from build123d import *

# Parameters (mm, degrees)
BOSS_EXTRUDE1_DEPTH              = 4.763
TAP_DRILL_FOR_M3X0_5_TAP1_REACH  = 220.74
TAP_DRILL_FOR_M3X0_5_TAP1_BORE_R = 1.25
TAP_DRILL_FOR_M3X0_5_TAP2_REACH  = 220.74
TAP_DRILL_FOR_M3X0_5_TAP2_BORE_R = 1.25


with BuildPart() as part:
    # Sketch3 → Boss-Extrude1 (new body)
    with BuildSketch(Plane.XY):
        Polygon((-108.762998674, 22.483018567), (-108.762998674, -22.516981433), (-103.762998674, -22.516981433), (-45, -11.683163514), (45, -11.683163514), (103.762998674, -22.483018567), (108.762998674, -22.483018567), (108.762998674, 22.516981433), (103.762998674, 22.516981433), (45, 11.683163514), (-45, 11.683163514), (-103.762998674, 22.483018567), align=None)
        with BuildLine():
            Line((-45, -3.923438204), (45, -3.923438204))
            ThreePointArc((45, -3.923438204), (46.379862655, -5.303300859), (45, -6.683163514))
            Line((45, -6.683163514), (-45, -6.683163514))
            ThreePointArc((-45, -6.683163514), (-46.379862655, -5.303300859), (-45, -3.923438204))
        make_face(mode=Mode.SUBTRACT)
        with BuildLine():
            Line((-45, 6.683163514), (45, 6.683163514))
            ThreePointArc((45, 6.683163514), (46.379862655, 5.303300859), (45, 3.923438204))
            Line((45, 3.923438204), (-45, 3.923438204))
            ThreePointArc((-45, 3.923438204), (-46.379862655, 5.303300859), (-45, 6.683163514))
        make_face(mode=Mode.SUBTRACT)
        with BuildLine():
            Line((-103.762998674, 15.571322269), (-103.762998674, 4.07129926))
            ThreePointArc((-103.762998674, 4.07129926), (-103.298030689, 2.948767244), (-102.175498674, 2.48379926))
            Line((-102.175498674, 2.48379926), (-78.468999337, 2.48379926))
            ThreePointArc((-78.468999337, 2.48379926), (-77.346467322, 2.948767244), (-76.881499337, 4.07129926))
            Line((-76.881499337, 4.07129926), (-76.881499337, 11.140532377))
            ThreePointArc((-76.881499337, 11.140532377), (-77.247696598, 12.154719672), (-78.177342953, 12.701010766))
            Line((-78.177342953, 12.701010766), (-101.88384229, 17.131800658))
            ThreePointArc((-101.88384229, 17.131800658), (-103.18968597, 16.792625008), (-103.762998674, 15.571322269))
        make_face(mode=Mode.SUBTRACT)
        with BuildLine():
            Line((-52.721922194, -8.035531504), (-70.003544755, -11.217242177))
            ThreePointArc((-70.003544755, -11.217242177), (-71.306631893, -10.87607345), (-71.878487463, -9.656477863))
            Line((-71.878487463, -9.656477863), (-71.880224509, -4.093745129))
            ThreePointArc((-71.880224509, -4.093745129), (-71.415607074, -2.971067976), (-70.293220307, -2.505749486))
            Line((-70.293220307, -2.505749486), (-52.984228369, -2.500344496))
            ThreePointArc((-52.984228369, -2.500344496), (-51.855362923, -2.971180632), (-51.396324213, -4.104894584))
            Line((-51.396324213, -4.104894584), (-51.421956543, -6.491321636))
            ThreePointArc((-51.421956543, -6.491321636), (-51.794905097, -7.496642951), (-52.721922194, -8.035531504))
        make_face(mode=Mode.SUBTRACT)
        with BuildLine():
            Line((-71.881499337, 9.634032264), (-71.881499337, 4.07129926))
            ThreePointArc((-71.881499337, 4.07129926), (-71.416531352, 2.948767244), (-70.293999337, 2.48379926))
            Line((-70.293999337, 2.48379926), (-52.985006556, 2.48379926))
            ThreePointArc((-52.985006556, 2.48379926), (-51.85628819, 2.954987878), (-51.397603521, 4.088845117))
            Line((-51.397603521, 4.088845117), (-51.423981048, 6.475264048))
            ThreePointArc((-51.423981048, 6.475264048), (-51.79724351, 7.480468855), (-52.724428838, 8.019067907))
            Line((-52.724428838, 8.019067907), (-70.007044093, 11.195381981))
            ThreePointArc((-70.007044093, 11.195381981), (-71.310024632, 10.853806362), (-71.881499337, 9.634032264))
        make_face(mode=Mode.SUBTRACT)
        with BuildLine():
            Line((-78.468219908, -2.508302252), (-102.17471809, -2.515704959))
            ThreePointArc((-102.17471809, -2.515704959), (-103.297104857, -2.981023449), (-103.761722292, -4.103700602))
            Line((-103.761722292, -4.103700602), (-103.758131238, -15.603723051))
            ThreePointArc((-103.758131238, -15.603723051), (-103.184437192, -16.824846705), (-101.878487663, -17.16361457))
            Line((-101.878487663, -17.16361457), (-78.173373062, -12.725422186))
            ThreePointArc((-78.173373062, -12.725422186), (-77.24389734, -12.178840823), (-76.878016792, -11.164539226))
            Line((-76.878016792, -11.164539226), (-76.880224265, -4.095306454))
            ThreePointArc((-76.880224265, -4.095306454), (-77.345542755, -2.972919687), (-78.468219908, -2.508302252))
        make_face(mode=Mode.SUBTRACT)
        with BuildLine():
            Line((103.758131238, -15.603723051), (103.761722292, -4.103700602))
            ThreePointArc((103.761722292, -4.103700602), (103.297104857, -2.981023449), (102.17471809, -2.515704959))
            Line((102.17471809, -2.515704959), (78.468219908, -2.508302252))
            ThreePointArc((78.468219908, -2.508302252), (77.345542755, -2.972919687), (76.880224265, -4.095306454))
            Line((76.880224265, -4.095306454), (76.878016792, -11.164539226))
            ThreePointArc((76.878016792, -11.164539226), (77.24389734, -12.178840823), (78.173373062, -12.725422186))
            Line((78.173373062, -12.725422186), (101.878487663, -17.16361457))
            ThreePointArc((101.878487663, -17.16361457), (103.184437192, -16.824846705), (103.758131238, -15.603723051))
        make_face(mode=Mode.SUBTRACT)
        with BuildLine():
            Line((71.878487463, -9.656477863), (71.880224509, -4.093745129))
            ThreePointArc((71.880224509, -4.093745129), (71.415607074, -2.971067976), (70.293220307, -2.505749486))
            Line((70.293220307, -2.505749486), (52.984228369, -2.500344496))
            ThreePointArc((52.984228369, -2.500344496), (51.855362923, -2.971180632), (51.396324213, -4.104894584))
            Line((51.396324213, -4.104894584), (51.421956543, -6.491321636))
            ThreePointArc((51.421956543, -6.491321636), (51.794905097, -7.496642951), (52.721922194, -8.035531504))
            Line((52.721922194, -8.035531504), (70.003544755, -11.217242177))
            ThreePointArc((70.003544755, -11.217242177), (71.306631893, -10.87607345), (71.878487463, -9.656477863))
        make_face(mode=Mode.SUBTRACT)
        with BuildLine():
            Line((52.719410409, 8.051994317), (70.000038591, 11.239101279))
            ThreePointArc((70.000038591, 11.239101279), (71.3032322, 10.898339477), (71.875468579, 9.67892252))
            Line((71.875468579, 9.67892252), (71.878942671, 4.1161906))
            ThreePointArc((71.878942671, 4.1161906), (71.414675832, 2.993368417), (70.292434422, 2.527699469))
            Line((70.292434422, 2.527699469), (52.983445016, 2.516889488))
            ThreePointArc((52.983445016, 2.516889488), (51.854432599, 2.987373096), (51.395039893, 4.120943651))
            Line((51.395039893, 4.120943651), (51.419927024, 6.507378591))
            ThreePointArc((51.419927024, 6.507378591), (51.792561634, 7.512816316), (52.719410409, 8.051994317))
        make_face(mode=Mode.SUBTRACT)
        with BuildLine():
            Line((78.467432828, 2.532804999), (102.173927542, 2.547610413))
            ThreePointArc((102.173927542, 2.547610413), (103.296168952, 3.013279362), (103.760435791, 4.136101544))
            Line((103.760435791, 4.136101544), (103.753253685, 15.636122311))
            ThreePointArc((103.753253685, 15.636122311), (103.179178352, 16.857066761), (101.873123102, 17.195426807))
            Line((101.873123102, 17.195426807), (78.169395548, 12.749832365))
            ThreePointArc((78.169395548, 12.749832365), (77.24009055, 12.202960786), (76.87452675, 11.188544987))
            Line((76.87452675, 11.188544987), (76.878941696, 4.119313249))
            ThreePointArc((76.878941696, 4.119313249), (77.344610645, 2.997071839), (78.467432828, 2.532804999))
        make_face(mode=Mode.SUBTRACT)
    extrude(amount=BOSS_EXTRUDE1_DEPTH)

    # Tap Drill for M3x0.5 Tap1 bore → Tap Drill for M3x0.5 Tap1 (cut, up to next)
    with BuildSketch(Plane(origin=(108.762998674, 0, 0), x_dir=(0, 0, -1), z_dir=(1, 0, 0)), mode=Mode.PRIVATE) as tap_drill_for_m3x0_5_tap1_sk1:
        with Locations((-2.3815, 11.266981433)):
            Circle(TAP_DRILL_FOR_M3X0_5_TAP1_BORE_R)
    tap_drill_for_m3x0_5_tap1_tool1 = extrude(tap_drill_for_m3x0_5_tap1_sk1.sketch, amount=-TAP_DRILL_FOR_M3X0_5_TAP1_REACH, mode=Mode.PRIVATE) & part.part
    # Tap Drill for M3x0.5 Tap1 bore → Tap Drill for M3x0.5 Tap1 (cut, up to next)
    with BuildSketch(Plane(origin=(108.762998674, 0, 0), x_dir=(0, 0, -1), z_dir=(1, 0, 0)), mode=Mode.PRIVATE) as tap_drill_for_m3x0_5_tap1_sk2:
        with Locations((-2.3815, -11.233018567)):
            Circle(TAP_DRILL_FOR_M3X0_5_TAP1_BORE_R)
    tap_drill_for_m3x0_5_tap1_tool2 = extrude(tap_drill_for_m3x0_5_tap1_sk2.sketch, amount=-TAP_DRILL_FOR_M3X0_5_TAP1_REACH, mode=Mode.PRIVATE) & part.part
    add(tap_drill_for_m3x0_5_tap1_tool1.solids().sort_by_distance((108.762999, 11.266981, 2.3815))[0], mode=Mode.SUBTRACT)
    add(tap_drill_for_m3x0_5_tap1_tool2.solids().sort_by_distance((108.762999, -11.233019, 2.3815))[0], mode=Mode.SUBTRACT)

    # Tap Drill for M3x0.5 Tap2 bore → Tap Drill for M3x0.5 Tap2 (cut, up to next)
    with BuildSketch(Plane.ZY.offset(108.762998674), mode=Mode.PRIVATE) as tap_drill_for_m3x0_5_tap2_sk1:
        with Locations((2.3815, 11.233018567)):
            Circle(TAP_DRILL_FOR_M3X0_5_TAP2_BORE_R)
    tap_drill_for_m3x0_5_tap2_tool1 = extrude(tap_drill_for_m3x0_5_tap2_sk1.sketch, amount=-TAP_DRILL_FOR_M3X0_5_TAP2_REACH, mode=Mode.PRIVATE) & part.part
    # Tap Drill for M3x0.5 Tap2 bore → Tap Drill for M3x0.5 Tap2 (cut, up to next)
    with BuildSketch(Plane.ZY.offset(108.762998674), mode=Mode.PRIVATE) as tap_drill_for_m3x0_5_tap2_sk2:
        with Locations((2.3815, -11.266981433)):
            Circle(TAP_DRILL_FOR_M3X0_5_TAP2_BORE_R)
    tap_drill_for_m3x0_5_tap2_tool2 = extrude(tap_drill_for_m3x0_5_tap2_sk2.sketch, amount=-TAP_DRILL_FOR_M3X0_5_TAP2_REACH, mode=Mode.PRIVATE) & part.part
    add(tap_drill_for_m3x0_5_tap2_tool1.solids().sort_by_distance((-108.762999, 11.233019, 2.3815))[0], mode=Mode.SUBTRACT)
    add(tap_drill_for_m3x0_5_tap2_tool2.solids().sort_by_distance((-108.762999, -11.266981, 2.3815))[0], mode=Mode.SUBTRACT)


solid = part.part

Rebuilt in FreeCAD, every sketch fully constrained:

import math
import FreeCAD as App
import Part
import Sketcher

V = App.Vector


def add_polygon(sketch, points):
    """Adds a closed chain of lines whose ends are joined by coincident constraints."""
    first, n = sketch.GeometryCount, len(points)
    for a, b in zip(points, points[1:] + points[:1]):
        sketch.addGeometry(Part.LineSegment(App.Vector(*a, 0), App.Vector(*b, 0)), False)
    for i in range(n):
        sketch.addConstraint(Sketcher.Constraint("Coincident", first + i, 2, first + (i + 1) % n, 1))

doc = App.newDocument("Part")
body = doc.addObject("PartDesign::Body", "Body")

# Sketch on XY plane
sketch1 = body.newObject("Sketcher::SketchObject", "Sketch")
sketch1.AttachmentSupport = (doc.getObject("XY_Plane"), [""])
sketch1.MapMode = "FlatFace"
add_polygon(sketch1, [(-108.762999, 22.483019), (-108.762999, -22.516981), (-103.762999, -22.516981), (-45, -11.683164), (45, -11.683164), (103.762999, -22.483019), (108.762999, -22.483019), (108.762999, 22.516981), (103.762999, 22.516981), (45, 11.683164), (-45, 11.683164), (-103.762999, 22.483019)])  # lines 0-11
sketch1.addGeometry(Part.LineSegment(V(-102.174718, -2.515705, 0), V(-78.46822, -2.508302, 0)), False)  # 12
sketch1.addGeometry(Part.ArcOfCircle(Part.Circle(V(-78.467724, -4.095802, 0), V(0, 0, 1), 1.5875), math.radians(0.017892), math.radians(90.017891)), False)  # 13
sketch1.addGeometry(Part.LineSegment(V(-76.880224, -4.095306, 0), V(-76.878017, -11.164539, 0)), False)  # 14
sketch1.addGeometry(Part.ArcOfCircle(Part.Circle(V(-78.465517, -11.165035, 0), V(0, 0, 1), 1.5875), math.radians(-79.395561), math.radians(0.017892)), False)  # 15
sketch1.addGeometry(Part.LineSegment(V(-78.173373, -12.725422, 0), V(-101.878488, -17.163615, 0)), False)  # 16
sketch1.addGeometry(Part.ArcOfCircle(Part.Circle(V(-102.170631, -15.603227, 0), V(0, 0, 1), 1.5875), math.radians(-179.982109), math.radians(-79.395561)), False)  # 17
sketch1.addGeometry(Part.LineSegment(V(-103.758131, -15.603723, 0), V(-103.761722, -4.103701, 0)), False)  # 18
sketch1.addGeometry(Part.ArcOfCircle(Part.Circle(V(-102.174222, -4.103205, 0), V(0, 0, 1), 1.5875), math.radians(90.017892), math.radians(180.017891)), False)  # 19
sketch1.addGeometry(Part.ArcOfCircle(Part.Circle(V(-53.009365, -6.474271, 0), V(0, 0, 1), 1.5875), math.radians(-79.568124), math.radians(-0.615384)), False)  # 20
sketch1.addGeometry(Part.LineSegment(V(-52.721922, -8.035532, 0), V(-70.003545, -11.217242, 0)), False)  # 21
sketch1.addGeometry(Part.ArcOfCircle(Part.Circle(V(-70.290988, -9.655982, 0), V(0, 0, 1), 1.5875), math.radians(-179.982109), math.radians(-79.568124)), False)  # 22
sketch1.addGeometry(Part.LineSegment(V(-71.878487, -9.656478, 0), V(-71.880225, -4.093745, 0)), False)  # 23
sketch1.addGeometry(Part.ArcOfCircle(Part.Circle(V(-70.292725, -4.093249, 0), V(0, 0, 1), 1.5875), math.radians(90.017892), math.radians(180.017891)), False)  # 24
sketch1.addGeometry(Part.LineSegment(V(-70.29322, -2.505749, 0), V(-52.984228, -2.500344, 0)), False)  # 25
sketch1.addGeometry(Part.ArcOfCircle(Part.Circle(V(-52.983733, -4.087844, 0), V(0, 0, 1), 1.5875), math.radians(-0.615384), math.radians(90.017891)), False)  # 26
sketch1.addGeometry(Part.LineSegment(V(-51.396324, -4.104895, 0), V(-51.421957, -6.491322, 0)), False)  # 27
sketch1.addGeometry(Part.LineSegment(V(103.761722, -4.103701, 0), V(103.758131, -15.603723, 0)), False)  # 28
sketch1.addGeometry(Part.ArcOfCircle(Part.Circle(V(102.170631, -15.603227, 0), V(0, 0, 1), 1.5875), math.radians(-100.604439), math.radians(-0.017891)), False)  # 29
sketch1.addGeometry(Part.LineSegment(V(101.878488, -17.163615, 0), V(78.173373, -12.725422, 0)), False)  # 30
sketch1.addGeometry(Part.ArcOfCircle(Part.Circle(V(78.465517, -11.165035, 0), V(0, 0, 1), 1.5875), math.radians(179.982108), math.radians(259.395561)), False)  # 31
sketch1.addGeometry(Part.LineSegment(V(76.878017, -11.164539, 0), V(76.880224, -4.095306, 0)), False)  # 32
sketch1.addGeometry(Part.ArcOfCircle(Part.Circle(V(78.467724, -4.095802, 0), V(0, 0, 1), 1.5875), math.radians(89.982109), math.radians(179.982108)), False)  # 33
sketch1.addGeometry(Part.LineSegment(V(78.46822, -2.508302, 0), V(102.174718, -2.515705, 0)), False)  # 34
sketch1.addGeometry(Part.ArcOfCircle(Part.Circle(V(102.174222, -4.103205, 0), V(0, 0, 1), 1.5875), math.radians(-0.017891), math.radians(89.982108)), False)  # 35
sketch1.addGeometry(Part.ArcOfCircle(Part.Circle(V(-45, -5.303301, 0), V(0, 0, 1), 1.379863), math.radians(90), math.radians(270)), False)  # 36
sketch1.addGeometry(Part.LineSegment(V(-45, -3.923438, 0), V(45, -3.923438, 0)), False)  # 37
sketch1.addGeometry(Part.ArcOfCircle(Part.Circle(V(45, -5.303301, 0), V(0, 0, 1), 1.379863), math.radians(-90), math.radians(90)), False)  # 38
sketch1.addGeometry(Part.LineSegment(V(45, -6.683164, 0), V(-45, -6.683164, 0)), False)  # 39
sketch1.addGeometry(Part.LineSegment(V(71.880225, -4.093745, 0), V(71.878487, -9.656478, 0)), False)  # 40
sketch1.addGeometry(Part.ArcOfCircle(Part.Circle(V(70.290988, -9.655982, 0), V(0, 0, 1), 1.5875), math.radians(-100.431876), math.radians(-0.017891)), False)  # 41
sketch1.addGeometry(Part.LineSegment(V(70.003545, -11.217242, 0), V(52.721922, -8.035532, 0)), False)  # 42
sketch1.addGeometry(Part.ArcOfCircle(Part.Circle(V(53.009365, -6.474271, 0), V(0, 0, 1), 1.5875), math.radians(-179.384616), math.radians(-100.431876)), False)  # 43
sketch1.addGeometry(Part.LineSegment(V(51.421957, -6.491322, 0), V(51.396324, -4.104895, 0)), False)  # 44
sketch1.addGeometry(Part.ArcOfCircle(Part.Circle(V(52.983733, -4.087844, 0), V(0, 0, 1), 1.5875), math.radians(89.982109), math.radians(180.615384)), False)  # 45
sketch1.addGeometry(Part.LineSegment(V(52.984228, -2.500344, 0), V(70.29322, -2.505749, 0)), False)  # 46
sketch1.addGeometry(Part.ArcOfCircle(Part.Circle(V(70.292725, -4.093249, 0), V(0, 0, 1), 1.5875), math.radians(-0.017891), math.radians(89.982108)), False)  # 47
sketch1.addGeometry(Part.LineSegment(V(-71.881499, 4.071299, 0), V(-71.881499, 9.634032, 0)), False)  # 48
sketch1.addGeometry(Part.ArcOfCircle(Part.Circle(V(-70.293999, 9.634032, 0), V(0, 0, 1), 1.5875), math.radians(79.586015), math.radians(180)), False)  # 49
sketch1.addGeometry(Part.LineSegment(V(-70.007044, 11.195382, 0), V(-52.724429, 8.019068, 0)), False)  # 50
sketch1.addGeometry(Part.ArcOfCircle(Part.Circle(V(-53.011384, 6.457718, 0), V(0, 0, 1), 1.5875), math.radians(0.633275), math.radians(79.586015)), False)  # 51
sketch1.addGeometry(Part.LineSegment(V(-51.423981, 6.475264, 0), V(-51.397604, 4.088845, 0)), False)  # 52
sketch1.addGeometry(Part.ArcOfCircle(Part.Circle(V(-52.985007, 4.071299, 0), V(0, 0, 1), 1.5875), math.radians(-90), math.radians(0.633275)), False)  # 53
sketch1.addGeometry(Part.LineSegment(V(-52.985007, 2.483799, 0), V(-70.293999, 2.483799, 0)), False)  # 54
sketch1.addGeometry(Part.ArcOfCircle(Part.Circle(V(-70.293999, 4.071299, 0), V(0, 0, 1), 1.5875), math.radians(180), math.radians(270)), False)  # 55
sketch1.addGeometry(Part.LineSegment(V(-103.762999, 4.071299, 0), V(-103.762999, 15.571322, 0)), False)  # 56
sketch1.addGeometry(Part.ArcOfCircle(Part.Circle(V(-102.175499, 15.571322, 0), V(0, 0, 1), 1.5875), math.radians(79.413453), math.radians(180)), False)  # 57
sketch1.addGeometry(Part.LineSegment(V(-101.883842, 17.131801, 0), V(-78.177343, 12.701011, 0)), False)  # 58
sketch1.addGeometry(Part.ArcOfCircle(Part.Circle(V(-78.468999, 11.140532, 0), V(0, 0, 1), 1.5875), math.radians(0), math.radians(79.413453)), False)  # 59
sketch1.addGeometry(Part.LineSegment(V(-76.881499, 11.140532, 0), V(-76.881499, 4.071299, 0)), False)  # 60
sketch1.addGeometry(Part.ArcOfCircle(Part.Circle(V(-78.468999, 4.071299, 0), V(0, 0, 1), 1.5875), math.radians(-90), math.radians(0)), False)  # 61
sketch1.addGeometry(Part.LineSegment(V(-78.468999, 2.483799, 0), V(-102.175499, 2.483799, 0)), False)  # 62
sketch1.addGeometry(Part.ArcOfCircle(Part.Circle(V(-102.175499, 4.071299, 0), V(0, 0, 1), 1.5875), math.radians(180), math.radians(270)), False)  # 63
sketch1.addGeometry(Part.ArcOfCircle(Part.Circle(V(-45, 5.303301, 0), V(0, 0, 1), 1.379863), math.radians(90), math.radians(270)), False)  # 64
sketch1.addGeometry(Part.LineSegment(V(-45, 6.683164, 0), V(45, 6.683164, 0)), False)  # 65
sketch1.addGeometry(Part.ArcOfCircle(Part.Circle(V(45, 5.303301, 0), V(0, 0, 1), 1.379863), math.radians(-90), math.radians(90)), False)  # 66
sketch1.addGeometry(Part.LineSegment(V(45, 3.923438, 0), V(-45, 3.923438, 0)), False)  # 67
sketch1.addGeometry(Part.ArcOfCircle(Part.Circle(V(53.007341, 6.490824, 0), V(0, 0, 1), 1.5875), math.radians(100.449768), math.radians(179.402508)), False)  # 68
sketch1.addGeometry(Part.LineSegment(V(52.71941, 8.051994, 0), V(70.000039, 11.239101, 0)), False)  # 69
sketch1.addGeometry(Part.ArcOfCircle(Part.Circle(V(70.287969, 9.677931, 0), V(0, 0, 1), 1.5875), math.radians(0.035783), math.radians(100.449768)), False)  # 70
sketch1.addGeometry(Part.LineSegment(V(71.875469, 9.678923, 0), V(71.878943, 4.116191, 0)), False)  # 71
sketch1.addGeometry(Part.ArcOfCircle(Part.Circle(V(70.291443, 4.115199, 0), V(0, 0, 1), 1.5875), math.radians(-89.964217), math.radians(0.035783)), False)  # 72
sketch1.addGeometry(Part.LineSegment(V(70.292434, 2.527699, 0), V(52.983445, 2.516889, 0)), False)  # 73
sketch1.addGeometry(Part.ArcOfCircle(Part.Circle(V(52.982454, 4.104389, 0), V(0, 0, 1), 1.5875), math.radians(179.402508), math.radians(270.035783)), False)  # 74
sketch1.addGeometry(Part.LineSegment(V(51.39504, 4.120944, 0), V(51.419927, 6.507379, 0)), False)  # 75
sketch1.addGeometry(Part.LineSegment(V(102.173928, 2.54761, 0), V(78.467433, 2.532805, 0)), False)  # 76
sketch1.addGeometry(Part.ArcOfCircle(Part.Circle(V(78.466441, 4.120305, 0), V(0, 0, 1), 1.5875), math.radians(-179.964217), math.radians(-89.964217)), False)  # 77
sketch1.addGeometry(Part.LineSegment(V(76.878942, 4.119313, 0), V(76.874527, 11.188545, 0)), False)  # 78
sketch1.addGeometry(Part.ArcOfCircle(Part.Circle(V(78.462026, 11.189536, 0), V(0, 0, 1), 1.5875), math.radians(100.62233), math.radians(180.035783)), False)  # 79
sketch1.addGeometry(Part.LineSegment(V(78.169396, 12.749832, 0), V(101.873123, 17.195427, 0)), False)  # 80
sketch1.addGeometry(Part.ArcOfCircle(Part.Circle(V(102.165754, 15.635131, 0), V(0, 0, 1), 1.5875), math.radians(0.035783), math.radians(100.62233)), False)  # 81
sketch1.addGeometry(Part.LineSegment(V(103.753254, 15.636122, 0), V(103.760436, 4.136102, 0)), False)  # 82
sketch1.addGeometry(Part.ArcOfCircle(Part.Circle(V(102.172936, 4.13511, 0), V(0, 0, 1), 1.5875), math.radians(-89.964217), math.radians(0.035783)), False)  # 83
sketch1.addConstraint([
    Sketcher.Constraint("Coincident", 12, 2, 13, 2),
    Sketcher.Constraint("Coincident", 13, 1, 14, 1),
    Sketcher.Constraint("Coincident", 14, 2, 15, 2),
    Sketcher.Constraint("Coincident", 15, 1, 16, 1),
    Sketcher.Constraint("Coincident", 16, 2, 17, 2),
    Sketcher.Constraint("Coincident", 17, 1, 18, 1),
    Sketcher.Constraint("Coincident", 18, 2, 19, 2),
    Sketcher.Constraint("Coincident", 19, 1, 12, 1),
    Sketcher.Constraint("Coincident", 20, 1, 21, 1),
    Sketcher.Constraint("Coincident", 21, 2, 22, 2),
    Sketcher.Constraint("Coincident", 22, 1, 23, 1),
    Sketcher.Constraint("Coincident", 23, 2, 24, 2),
    Sketcher.Constraint("Coincident", 24, 1, 25, 1),
    Sketcher.Constraint("Coincident", 25, 2, 26, 2),
    Sketcher.Constraint("Coincident", 26, 1, 27, 1),
    Sketcher.Constraint("Coincident", 27, 2, 20, 2),
    Sketcher.Constraint("Coincident", 28, 2, 29, 2),
    Sketcher.Constraint("Coincident", 29, 1, 30, 1),
    Sketcher.Constraint("Coincident", 30, 2, 31, 2),
    Sketcher.Constraint("Coincident", 31, 1, 32, 1),
    Sketcher.Constraint("Coincident", 32, 2, 33, 2),
    Sketcher.Constraint("Coincident", 33, 1, 34, 1),
    Sketcher.Constraint("Coincident", 34, 2, 35, 2),
    Sketcher.Constraint("Coincident", 35, 1, 28, 1),
    Sketcher.Constraint("Coincident", 36, 1, 37, 1),
    Sketcher.Constraint("Coincident", 37, 2, 38, 2),
    Sketcher.Constraint("Coincident", 38, 1, 39, 1),
    Sketcher.Constraint("Coincident", 39, 2, 36, 2),
    Sketcher.Constraint("Coincident", 40, 2, 41, 2),
    Sketcher.Constraint("Coincident", 41, 1, 42, 1),
    Sketcher.Constraint("Coincident", 42, 2, 43, 2),
    Sketcher.Constraint("Coincident", 43, 1, 44, 1),
    Sketcher.Constraint("Coincident", 44, 2, 45, 2),
    Sketcher.Constraint("Coincident", 45, 1, 46, 1),
    Sketcher.Constraint("Coincident", 46, 2, 47, 2),
    Sketcher.Constraint("Coincident", 47, 1, 40, 1),
    Sketcher.Constraint("Coincident", 48, 2, 49, 2),
    Sketcher.Constraint("Coincident", 49, 1, 50, 1),
    Sketcher.Constraint("Coincident", 50, 2, 51, 2),
    Sketcher.Constraint("Coincident", 51, 1, 52, 1),
    Sketcher.Constraint("Coincident", 52, 2, 53, 2),
    Sketcher.Constraint("Coincident", 53, 1, 54, 1),
    Sketcher.Constraint("Coincident", 54, 2, 55, 2),
    Sketcher.Constraint("Coincident", 55, 1, 48, 1),
    Sketcher.Constraint("Coincident", 56, 2, 57, 2),
    Sketcher.Constraint("Coincident", 57, 1, 58, 1),
    Sketcher.Constraint("Coincident", 58, 2, 59, 2),
    Sketcher.Constraint("Coincident", 59, 1, 60, 1),
    Sketcher.Constraint("Coincident", 60, 2, 61, 2),
    Sketcher.Constraint("Coincident", 61, 1, 62, 1),
    Sketcher.Constraint("Coincident", 62, 2, 63, 2),
    Sketcher.Constraint("Coincident", 63, 1, 56, 1),
    Sketcher.Constraint("Coincident", 64, 1, 65, 1),
    Sketcher.Constraint("Coincident", 65, 2, 66, 2),
    Sketcher.Constraint("Coincident", 66, 1, 67, 1),
    Sketcher.Constraint("Coincident", 67, 2, 64, 2),
    Sketcher.Constraint("Coincident", 68, 1, 69, 1),
    Sketcher.Constraint("Coincident", 69, 2, 70, 2),
    Sketcher.Constraint("Coincident", 70, 1, 71, 1),
    Sketcher.Constraint("Coincident", 71, 2, 72, 2),
    Sketcher.Constraint("Coincident", 72, 1, 73, 1),
    Sketcher.Constraint("Coincident", 73, 2, 74, 2),
    Sketcher.Constraint("Coincident", 74, 1, 75, 1),
    Sketcher.Constraint("Coincident", 75, 2, 68, 2),
    Sketcher.Constraint("Coincident", 76, 2, 77, 2),
    Sketcher.Constraint("Coincident", 77, 1, 78, 1),
    Sketcher.Constraint("Coincident", 78, 2, 79, 2),
    Sketcher.Constraint("Coincident", 79, 1, 80, 1),
    Sketcher.Constraint("Coincident", 80, 2, 81, 2),
    Sketcher.Constraint("Coincident", 81, 1, 82, 1),
    Sketcher.Constraint("Coincident", 82, 2, 83, 2),
    Sketcher.Constraint("Coincident", 83, 1, 76, 1),
    Sketcher.Constraint("Vertical", 0),
    Sketcher.Constraint("Horizontal", 1),
    Sketcher.Constraint("Horizontal", 3),
    Sketcher.Constraint("Horizontal", 5),
    Sketcher.Constraint("Vertical", 6),
    Sketcher.Constraint("Horizontal", 7),
    Sketcher.Constraint("Horizontal", 9),
    Sketcher.Constraint("Horizontal", 11),
    Sketcher.Constraint("Horizontal", 37),
    Sketcher.Constraint("Horizontal", 39),
    Sketcher.Constraint("Vertical", 48),
    Sketcher.Constraint("Horizontal", 54),
    Sketcher.Constraint("Vertical", 56),
    Sketcher.Constraint("Vertical", 60),
    Sketcher.Constraint("Horizontal", 62),
    Sketcher.Constraint("Horizontal", 65),
    Sketcher.Constraint("Horizontal", 67),
    Sketcher.Constraint("DistanceX", 1, 1, 1, 2, 5.0),
    Sketcher.Constraint("DistanceX", 3, 1, 3, 2, 90.0),
    Sketcher.Constraint("DistanceX", 5, 1, 5, 2, 5.0),
    Sketcher.Constraint("DistanceX", 7, 2, 7, 1, 5.0),
    Sketcher.Constraint("DistanceX", 9, 2, 9, 1, 90.0),
    Sketcher.Constraint("DistanceX", 11, 2, 11, 1, 5.0),
    Sketcher.Constraint("DistanceX", 37, 1, 37, 2, 90.0),
    Sketcher.Constraint("DistanceX", 39, 2, 39, 1, 90.0),
    Sketcher.Constraint("DistanceX", 65, 1, 65, 2, 90.0),
    Sketcher.Constraint("DistanceX", 67, 2, 67, 1, 90.0),
    Sketcher.Constraint("DistanceY", 0, 2, 0, 1, 45.0),
    Sketcher.Constraint("DistanceY", 6, 1, 6, 2, 45.0),
    Sketcher.Constraint("DistanceX", 36, 3, -1, 1, 45.0),
    Sketcher.Constraint("DistanceX", -1, 1, 38, 3, 45.0),
    Sketcher.Constraint("DistanceX", 64, 3, -1, 1, 45.0),
    Sketcher.Constraint("DistanceX", -1, 1, 66, 3, 45.0),
    Sketcher.Constraint("DistanceX", 2, 2, -1, 1, 45.0),
    Sketcher.Constraint("DistanceX", -1, 1, 8, 2, 45.0),
    Sketcher.Constraint("DistanceX", 36, 1, -1, 1, 45.0),
    Sketcher.Constraint("DistanceX", -1, 1, 38, 1, 45.0),
    Sketcher.Constraint("DistanceX", 64, 1, -1, 1, 45.0),
    Sketcher.Constraint("DistanceX", -1, 1, 66, 1, 45.0),
    Sketcher.Constraint("Radius", 13, 1.5875),
    Sketcher.Constraint("Radius", 15, 1.5875),
    Sketcher.Constraint("Radius", 17, 1.5875),
    Sketcher.Constraint("Radius", 19, 1.5875),
    Sketcher.Constraint("Radius", 20, 1.5875),
    Sketcher.Constraint("Radius", 22, 1.5875),
    Sketcher.Constraint("Radius", 24, 1.5875),
    Sketcher.Constraint("Radius", 26, 1.5875),
    Sketcher.Constraint("Radius", 29, 1.5875),
    Sketcher.Constraint("Radius", 31, 1.5875),
    Sketcher.Constraint("Radius", 33, 1.5875),
    Sketcher.Constraint("Radius", 35, 1.5875),
    Sketcher.Constraint("Radius", 41, 1.5875),
    Sketcher.Constraint("Radius", 43, 1.5875),
    Sketcher.Constraint("Radius", 45, 1.5875),
    Sketcher.Constraint("Radius", 47, 1.5875),
    Sketcher.Constraint("Radius", 49, 1.5875),
    Sketcher.Constraint("Radius", 51, 1.5875),
    Sketcher.Constraint("Radius", 53, 1.5875),
    Sketcher.Constraint("Radius", 55, 1.5875),
    Sketcher.Constraint("Radius", 57, 1.5875),
    Sketcher.Constraint("Radius", 59, 1.5875),
    Sketcher.Constraint("Radius", 61, 1.5875),
    Sketcher.Constraint("Radius", 63, 1.5875),
    Sketcher.Constraint("Radius", 68, 1.5875),
    Sketcher.Constraint("Radius", 70, 1.5875),
    Sketcher.Constraint("Radius", 72, 1.5875),
    Sketcher.Constraint("Radius", 74, 1.5875),
    Sketcher.Constraint("Radius", 77, 1.5875),
    Sketcher.Constraint("Radius", 79, 1.5875),
    Sketcher.Constraint("Radius", 81, 1.5875),
    Sketcher.Constraint("Radius", 83, 1.5875),
    Sketcher.Constraint("DistanceX", 62, 2, 62, 1, 23.706499),
    Sketcher.Constraint("DistanceX", 49, 3, -1, 1, 70.293999),
    Sketcher.Constraint("DistanceX", 59, 3, -1, 1, 78.468999),
    Sketcher.Constraint("DistanceX", 0, 2, -1, 1, 108.762999),
    Sketcher.Constraint("DistanceX", -1, 1, 4, 2, 103.762999),
    Sketcher.Constraint("DistanceX", 54, 2, -1, 1, 70.293999),
    Sketcher.Constraint("DistanceX", 56, 2, -1, 1, 103.762999),
    Sketcher.Constraint("DistanceX", 61, 1, -1, 1, 78.468999),
    Sketcher.Constraint("Radius", 36, 1.379863),
    Sketcher.Constraint("Radius", 64, 1.379863),
    Sketcher.Constraint("Distance", 12, 23.706499),
    Sketcher.Constraint("Distance", 34, 23.706499),
    Sketcher.Constraint("Distance", 76, 23.706499),
    Sketcher.Constraint("DistanceY", 36, 3, -1, 1, 5.303301),
    Sketcher.Constraint("DistanceY", -1, 1, 53, 3, 4.071299),
    Sketcher.Constraint("DistanceY", -1, 1, 61, 3, 4.071299),
    Sketcher.Constraint("DistanceY", -1, 1, 64, 3, 5.303301),
    Sketcher.Constraint("DistanceY", -1, 1, 72, 3, 4.115199),
    Sketcher.Constraint("DistanceY", 18, 2, -1, 1, 4.103701),
    Sketcher.Constraint("DistanceY", 35, 1, -1, 1, 4.103701),
    Sketcher.Constraint("DistanceY", -1, 1, 55, 1, 4.071299),
    Sketcher.Constraint("DistanceY", -1, 1, 57, 1, 17.131801),
    Sketcher.Constraint("DistanceY", -1, 1, 60, 2, 4.071299),
    Sketcher.Constraint("DistanceY", -1, 1, 63, 1, 4.071299),
    Sketcher.Constraint("DistanceY", -1, 1, 69, 2, 11.239101),
    Sketcher.Constraint("DistanceY", -1, 1, 82, 2, 4.136102),
    Sketcher.Constraint("Distance", 2, 59.75334),
    Sketcher.Constraint("Distance", 4, 59.747191),
    Sketcher.Constraint("Distance", 8, 59.75334),
    Sketcher.Constraint("DistanceX", 54, 2, 54, 1, 17.308993),
    Sketcher.Constraint("DistanceY", 48, 1, 48, 2, 5.562733),
    Sketcher.Constraint("DistanceY", 56, 1, 56, 2, 11.500023),
    Sketcher.Constraint("DistanceY", 60, 2, 60, 1, 7.069233),
    Sketcher.Constraint("DistanceX", 17, 3, -1, 1, 102.170631),
    Sketcher.Constraint("DistanceY", 20, 3, -1, 1, 6.474271),
    Sketcher.Constraint("DistanceY", 24, 3, -1, 1, 4.093249),
    Sketcher.Constraint("DistanceX", -1, 1, 29, 3, 102.170631),
    Sketcher.Constraint("DistanceY", 43, 3, -1, 1, 6.474271),
    Sketcher.Constraint("DistanceY", 47, 3, -1, 1, 4.093249),
    Sketcher.Constraint("DistanceY", -1, 1, 51, 3, 6.457718),
    Sketcher.Constraint("DistanceX", -1, 1, 68, 3, 53.007341),
    Sketcher.Constraint("DistanceX", -1, 1, 70, 3, 70.287969),
    Sketcher.Constraint("DistanceY", -1, 1, 70, 3, 9.677931),
    Sketcher.Constraint("DistanceY", -1, 1, 74, 3, 4.104389),
    Sketcher.Constraint("DistanceX", -1, 1, 77, 3, 78.466441),
    Sketcher.Constraint("DistanceY", -1, 1, 81, 3, 15.635131),
    Sketcher.Constraint("DistanceY", -1, 1, 83, 3, 4.13511),
    Sketcher.Constraint("DistanceY", 0, 2, -1, 1, 22.516981),
    Sketcher.Constraint("DistanceX", 12, 2, -1, 1, 78.46822),
    Sketcher.Constraint("DistanceY", 14, 2, -1, 1, 11.164539),
    Sketcher.Constraint("DistanceY", 20, 1, -1, 1, 8.035532),
    Sketcher.Constraint("DistanceX", 24, 1, -1, 1, 70.29322),
    Sketcher.Constraint("DistanceX", 25, 2, -1, 1, 52.984228),
    Sketcher.Constraint("DistanceY", 27, 2, -1, 1, 6.491322),
    Sketcher.Constraint("DistanceY", 31, 1, -1, 1, 11.164539),
    Sketcher.Constraint("DistanceX", -1, 1, 33, 1, 78.46822),
    Sketcher.Constraint("DistanceY", 42, 2, -1, 1, 8.035532),
    Sketcher.Constraint("DistanceY", 43, 1, -1, 1, 6.491322),
    Sketcher.Constraint("DistanceX", -1, 1, 45, 1, 52.984228),
    Sketcher.Constraint("DistanceX", -1, 1, 46, 2, 70.29322),
    Sketcher.Constraint("DistanceY", -1, 1, 49, 1, 11.195382),
    Sketcher.Constraint("DistanceX", 50, 2, -1, 1, 52.724429),
    Sketcher.Constraint("DistanceX", 51, 1, -1, 1, 51.423981),
    Sketcher.Constraint("DistanceY", -1, 1, 58, 2, 12.701011),
    Sketcher.Constraint("DistanceX", -1, 1, 68, 1, 52.71941),
    Sketcher.Constraint("DistanceY", -1, 1, 71, 2, 4.116191),
    Sketcher.Constraint("DistanceX", -1, 1, 74, 1, 51.39504),
    Sketcher.Constraint("DistanceY", -1, 1, 75, 2, 6.507379),
    Sketcher.Constraint("Distance", 14, 7.069233),
    Sketcher.Constraint("Distance", 16, 24.117007),
    Sketcher.Constraint("Distance", 18, 11.500023),
    Sketcher.Constraint("Distance", 21, 17.572073),
    Sketcher.Constraint("Distance", 23, 5.562733),
    Sketcher.Constraint("Distance", 27, 2.386565),
    Sketcher.Constraint("Distance", 28, 11.500023),
    Sketcher.Constraint("Distance", 30, 24.117007),
    Sketcher.Constraint("Distance", 32, 7.069233),
    Sketcher.Constraint("Distance", 40, 5.562733),
    Sketcher.Constraint("Distance", 42, 17.572073),
    Sketcher.Constraint("Distance", 44, 2.386565),
    Sketcher.Constraint("Distance", 50, 17.572073),
    Sketcher.Constraint("Distance", 52, 2.386565),
    Sketcher.Constraint("Distance", 58, 24.117007),
    Sketcher.Constraint("Distance", 69, 17.572073),
    Sketcher.Constraint("Distance", 71, 5.562733),
    Sketcher.Constraint("Distance", 73, 17.308993),
    Sketcher.Constraint("Distance", 75, 2.386565),
    Sketcher.Constraint("Distance", 78, 7.069233),
    Sketcher.Constraint("Distance", 80, 24.117007),
    Sketcher.Constraint("Distance", 82, 11.500023),
    Sketcher.Constraint("DistanceX", 13, 3, -1, 1, 78.467724),
    Sketcher.Constraint("DistanceY", 13, 3, -1, 1, 4.095802),
    Sketcher.Constraint("DistanceX", 15, 3, -1, 1, 78.465517),
    Sketcher.Constraint("DistanceY", 15, 3, -1, 1, 11.165035),
    Sketcher.Constraint("DistanceY", 17, 3, -1, 1, 15.603227),
    Sketcher.Constraint("DistanceX", 19, 3, -1, 1, 102.174222),
    Sketcher.Constraint("DistanceY", 19, 3, -1, 1, 4.103205),
    Sketcher.Constraint("DistanceX", 20, 3, -1, 1, 53.009365),
    Sketcher.Constraint("DistanceX", 22, 3, -1, 1, 70.290988),
    Sketcher.Constraint("DistanceY", 22, 3, -1, 1, 9.655982),
    Sketcher.Constraint("DistanceX", 24, 3, -1, 1, 70.292725),
    Sketcher.Constraint("DistanceX", 26, 3, -1, 1, 52.983733),
    Sketcher.Constraint("DistanceY", 26, 3, -1, 1, 4.087844),
    Sketcher.Constraint("DistanceY", 29, 3, -1, 1, 15.603227),
    Sketcher.Constraint("DistanceX", -1, 1, 31, 3, 78.465517),
    Sketcher.Constraint("DistanceY", 31, 3, -1, 1, 11.165035),
    Sketcher.Constraint("DistanceX", -1, 1, 33, 3, 78.467724),
    Sketcher.Constraint("DistanceY", 33, 3, -1, 1, 4.095802),
    Sketcher.Constraint("DistanceX", -1, 1, 35, 3, 102.174222),
    Sketcher.Constraint("DistanceY", 35, 3, -1, 1, 4.103205),
    Sketcher.Constraint("DistanceX", -1, 1, 41, 3, 70.290988),
    Sketcher.Constraint("DistanceY", 41, 3, -1, 1, 9.655982),
    Sketcher.Constraint("DistanceX", -1, 1, 43, 3, 53.009365),
    Sketcher.Constraint("DistanceX", -1, 1, 45, 3, 52.983733),
    Sketcher.Constraint("DistanceY", 45, 3, -1, 1, 4.087844),
    Sketcher.Constraint("DistanceX", -1, 1, 47, 3, 70.292725),
    Sketcher.Constraint("DistanceX", 51, 3, -1, 1, 53.011384),
    Sketcher.Constraint("DistanceX", 53, 3, -1, 1, 52.985007),
    Sketcher.Constraint("DistanceY", -1, 1, 57, 3, 15.571322),
    Sketcher.Constraint("DistanceX", -1, 1, 72, 3, 70.291443),
    Sketcher.Constraint("DistanceY", -1, 1, 77, 3, 4.120305),
    Sketcher.Constraint("DistanceX", -1, 1, 79, 3, 78.462026),
    Sketcher.Constraint("DistanceY", -1, 1, 79, 3, 11.189536),
    Sketcher.Constraint("DistanceX", -1, 1, 81, 3, 102.165754),
    Sketcher.Constraint("DistanceX", -1, 1, 83, 3, 102.172936),
    Sketcher.Constraint("DistanceX", 15, 1, -1, 1, 78.173373),
    Sketcher.Constraint("DistanceY", 22, 1, -1, 1, 9.656478),
    Sketcher.Constraint("DistanceX", -1, 1, 29, 1, 101.878488),
    Sketcher.Constraint("DistanceY", 40, 2, -1, 1, 9.656478),
    Sketcher.Constraint("DistanceX", -1, 1, 72, 1, 70.292434),
    Sketcher.Constraint("DistanceX", -1, 1, 76, 2, 78.467433),
    Sketcher.Constraint("DistanceY", -1, 1, 77, 1, 4.119313),
    Sketcher.Constraint("DistanceX", -1, 1, 79, 1, 78.169396),
])
pad1 = body.newObject("PartDesign::Pad", "Pad")
pad1.Profile = sketch1
pad1.Length = 4.763

# Sketch on YZ plane
sketch2 = body.newObject("Sketcher::SketchObject", "Sketch001")
sketch2.AttachmentSupport = (doc.getObject("YZ_Plane"), [""])
sketch2.MapMode = "FlatFace"
sketch2.AttachmentOffset = App.Placement(V(0, 0, 108.762999), App.Rotation())
sketch2.addGeometry(Part.Circle(V(11.3, 2.4, 0), V(0, 0, 1), 1.2), False)
sketch2.addConstraint([
    Sketcher.Constraint("Diameter", 0, 2.5),
    Sketcher.Constraint("DistanceY", -1, 1, 0, 3, 2.3815),
    Sketcher.Constraint("DistanceX", -1, 1, 0, 3, 11.266981),
])
pocket1 = body.newObject("PartDesign::Pocket", "Pocket")
pocket1.Profile = sketch2
pocket1.Type = "UpToFirst"

# Sketch on YZ plane
sketch3 = body.newObject("Sketcher::SketchObject", "Sketch002")
sketch3.AttachmentSupport = (doc.getObject("YZ_Plane"), [""])
sketch3.MapMode = "FlatFace"
sketch3.AttachmentOffset = App.Placement(V(0, 0, 108.762999), App.Rotation())
sketch3.addGeometry(Part.Circle(V(-11.2, 2.4, 0), V(0, 0, 1), 1.2), False)
sketch3.addConstraint([
    Sketcher.Constraint("Diameter", 0, 2.5),
    Sketcher.Constraint("DistanceY", -1, 1, 0, 3, 2.3815),
    Sketcher.Constraint("DistanceX", 0, 3, -1, 1, 11.233019),
])
pocket2 = body.newObject("PartDesign::Pocket", "Pocket001")
pocket2.Profile = sketch3
pocket2.Type = "UpToFirst"

# Sketch on YZ plane
sketch4 = body.newObject("Sketcher::SketchObject", "Sketch003")
sketch4.AttachmentSupport = (doc.getObject("YZ_Plane"), [""])
sketch4.MapMode = "FlatFace"
sketch4.AttachmentOffset = App.Placement(V(0, 0, -108.762999), App.Rotation())
sketch4.addGeometry(Part.Circle(V(11.2, 2.4, 0), V(0, 0, 1), 1.2), False)
sketch4.addConstraint([
    Sketcher.Constraint("Diameter", 0, 2.5),
    Sketcher.Constraint("DistanceY", -1, 1, 0, 3, 2.3815),
    Sketcher.Constraint("DistanceX", -1, 1, 0, 3, 11.233019),
])
pocket3 = body.newObject("PartDesign::Pocket", "Pocket002")
pocket3.Profile = sketch4
pocket3.Type = "UpToFirst"
pocket3.Reversed = True

# Sketch on YZ plane
sketch5 = body.newObject("Sketcher::SketchObject", "Sketch004")
sketch5.AttachmentSupport = (doc.getObject("YZ_Plane"), [""])
sketch5.MapMode = "FlatFace"
sketch5.AttachmentOffset = App.Placement(V(0, 0, -108.762999), App.Rotation())
sketch5.addGeometry(Part.Circle(V(-11.3, 2.4, 0), V(0, 0, 1), 1.2), False)
sketch5.addConstraint([
    Sketcher.Constraint("Diameter", 0, 2.5),
    Sketcher.Constraint("DistanceY", -1, 1, 0, 3, 2.3815),
    Sketcher.Constraint("DistanceX", 0, 3, -1, 1, 11.266981),
])
pocket4 = body.newObject("PartDesign::Pocket", "Pocket003")
pocket4.Profile = sketch5
pocket4.Type = "UpToFirst"
pocket4.Reversed = True

doc.recompute()
